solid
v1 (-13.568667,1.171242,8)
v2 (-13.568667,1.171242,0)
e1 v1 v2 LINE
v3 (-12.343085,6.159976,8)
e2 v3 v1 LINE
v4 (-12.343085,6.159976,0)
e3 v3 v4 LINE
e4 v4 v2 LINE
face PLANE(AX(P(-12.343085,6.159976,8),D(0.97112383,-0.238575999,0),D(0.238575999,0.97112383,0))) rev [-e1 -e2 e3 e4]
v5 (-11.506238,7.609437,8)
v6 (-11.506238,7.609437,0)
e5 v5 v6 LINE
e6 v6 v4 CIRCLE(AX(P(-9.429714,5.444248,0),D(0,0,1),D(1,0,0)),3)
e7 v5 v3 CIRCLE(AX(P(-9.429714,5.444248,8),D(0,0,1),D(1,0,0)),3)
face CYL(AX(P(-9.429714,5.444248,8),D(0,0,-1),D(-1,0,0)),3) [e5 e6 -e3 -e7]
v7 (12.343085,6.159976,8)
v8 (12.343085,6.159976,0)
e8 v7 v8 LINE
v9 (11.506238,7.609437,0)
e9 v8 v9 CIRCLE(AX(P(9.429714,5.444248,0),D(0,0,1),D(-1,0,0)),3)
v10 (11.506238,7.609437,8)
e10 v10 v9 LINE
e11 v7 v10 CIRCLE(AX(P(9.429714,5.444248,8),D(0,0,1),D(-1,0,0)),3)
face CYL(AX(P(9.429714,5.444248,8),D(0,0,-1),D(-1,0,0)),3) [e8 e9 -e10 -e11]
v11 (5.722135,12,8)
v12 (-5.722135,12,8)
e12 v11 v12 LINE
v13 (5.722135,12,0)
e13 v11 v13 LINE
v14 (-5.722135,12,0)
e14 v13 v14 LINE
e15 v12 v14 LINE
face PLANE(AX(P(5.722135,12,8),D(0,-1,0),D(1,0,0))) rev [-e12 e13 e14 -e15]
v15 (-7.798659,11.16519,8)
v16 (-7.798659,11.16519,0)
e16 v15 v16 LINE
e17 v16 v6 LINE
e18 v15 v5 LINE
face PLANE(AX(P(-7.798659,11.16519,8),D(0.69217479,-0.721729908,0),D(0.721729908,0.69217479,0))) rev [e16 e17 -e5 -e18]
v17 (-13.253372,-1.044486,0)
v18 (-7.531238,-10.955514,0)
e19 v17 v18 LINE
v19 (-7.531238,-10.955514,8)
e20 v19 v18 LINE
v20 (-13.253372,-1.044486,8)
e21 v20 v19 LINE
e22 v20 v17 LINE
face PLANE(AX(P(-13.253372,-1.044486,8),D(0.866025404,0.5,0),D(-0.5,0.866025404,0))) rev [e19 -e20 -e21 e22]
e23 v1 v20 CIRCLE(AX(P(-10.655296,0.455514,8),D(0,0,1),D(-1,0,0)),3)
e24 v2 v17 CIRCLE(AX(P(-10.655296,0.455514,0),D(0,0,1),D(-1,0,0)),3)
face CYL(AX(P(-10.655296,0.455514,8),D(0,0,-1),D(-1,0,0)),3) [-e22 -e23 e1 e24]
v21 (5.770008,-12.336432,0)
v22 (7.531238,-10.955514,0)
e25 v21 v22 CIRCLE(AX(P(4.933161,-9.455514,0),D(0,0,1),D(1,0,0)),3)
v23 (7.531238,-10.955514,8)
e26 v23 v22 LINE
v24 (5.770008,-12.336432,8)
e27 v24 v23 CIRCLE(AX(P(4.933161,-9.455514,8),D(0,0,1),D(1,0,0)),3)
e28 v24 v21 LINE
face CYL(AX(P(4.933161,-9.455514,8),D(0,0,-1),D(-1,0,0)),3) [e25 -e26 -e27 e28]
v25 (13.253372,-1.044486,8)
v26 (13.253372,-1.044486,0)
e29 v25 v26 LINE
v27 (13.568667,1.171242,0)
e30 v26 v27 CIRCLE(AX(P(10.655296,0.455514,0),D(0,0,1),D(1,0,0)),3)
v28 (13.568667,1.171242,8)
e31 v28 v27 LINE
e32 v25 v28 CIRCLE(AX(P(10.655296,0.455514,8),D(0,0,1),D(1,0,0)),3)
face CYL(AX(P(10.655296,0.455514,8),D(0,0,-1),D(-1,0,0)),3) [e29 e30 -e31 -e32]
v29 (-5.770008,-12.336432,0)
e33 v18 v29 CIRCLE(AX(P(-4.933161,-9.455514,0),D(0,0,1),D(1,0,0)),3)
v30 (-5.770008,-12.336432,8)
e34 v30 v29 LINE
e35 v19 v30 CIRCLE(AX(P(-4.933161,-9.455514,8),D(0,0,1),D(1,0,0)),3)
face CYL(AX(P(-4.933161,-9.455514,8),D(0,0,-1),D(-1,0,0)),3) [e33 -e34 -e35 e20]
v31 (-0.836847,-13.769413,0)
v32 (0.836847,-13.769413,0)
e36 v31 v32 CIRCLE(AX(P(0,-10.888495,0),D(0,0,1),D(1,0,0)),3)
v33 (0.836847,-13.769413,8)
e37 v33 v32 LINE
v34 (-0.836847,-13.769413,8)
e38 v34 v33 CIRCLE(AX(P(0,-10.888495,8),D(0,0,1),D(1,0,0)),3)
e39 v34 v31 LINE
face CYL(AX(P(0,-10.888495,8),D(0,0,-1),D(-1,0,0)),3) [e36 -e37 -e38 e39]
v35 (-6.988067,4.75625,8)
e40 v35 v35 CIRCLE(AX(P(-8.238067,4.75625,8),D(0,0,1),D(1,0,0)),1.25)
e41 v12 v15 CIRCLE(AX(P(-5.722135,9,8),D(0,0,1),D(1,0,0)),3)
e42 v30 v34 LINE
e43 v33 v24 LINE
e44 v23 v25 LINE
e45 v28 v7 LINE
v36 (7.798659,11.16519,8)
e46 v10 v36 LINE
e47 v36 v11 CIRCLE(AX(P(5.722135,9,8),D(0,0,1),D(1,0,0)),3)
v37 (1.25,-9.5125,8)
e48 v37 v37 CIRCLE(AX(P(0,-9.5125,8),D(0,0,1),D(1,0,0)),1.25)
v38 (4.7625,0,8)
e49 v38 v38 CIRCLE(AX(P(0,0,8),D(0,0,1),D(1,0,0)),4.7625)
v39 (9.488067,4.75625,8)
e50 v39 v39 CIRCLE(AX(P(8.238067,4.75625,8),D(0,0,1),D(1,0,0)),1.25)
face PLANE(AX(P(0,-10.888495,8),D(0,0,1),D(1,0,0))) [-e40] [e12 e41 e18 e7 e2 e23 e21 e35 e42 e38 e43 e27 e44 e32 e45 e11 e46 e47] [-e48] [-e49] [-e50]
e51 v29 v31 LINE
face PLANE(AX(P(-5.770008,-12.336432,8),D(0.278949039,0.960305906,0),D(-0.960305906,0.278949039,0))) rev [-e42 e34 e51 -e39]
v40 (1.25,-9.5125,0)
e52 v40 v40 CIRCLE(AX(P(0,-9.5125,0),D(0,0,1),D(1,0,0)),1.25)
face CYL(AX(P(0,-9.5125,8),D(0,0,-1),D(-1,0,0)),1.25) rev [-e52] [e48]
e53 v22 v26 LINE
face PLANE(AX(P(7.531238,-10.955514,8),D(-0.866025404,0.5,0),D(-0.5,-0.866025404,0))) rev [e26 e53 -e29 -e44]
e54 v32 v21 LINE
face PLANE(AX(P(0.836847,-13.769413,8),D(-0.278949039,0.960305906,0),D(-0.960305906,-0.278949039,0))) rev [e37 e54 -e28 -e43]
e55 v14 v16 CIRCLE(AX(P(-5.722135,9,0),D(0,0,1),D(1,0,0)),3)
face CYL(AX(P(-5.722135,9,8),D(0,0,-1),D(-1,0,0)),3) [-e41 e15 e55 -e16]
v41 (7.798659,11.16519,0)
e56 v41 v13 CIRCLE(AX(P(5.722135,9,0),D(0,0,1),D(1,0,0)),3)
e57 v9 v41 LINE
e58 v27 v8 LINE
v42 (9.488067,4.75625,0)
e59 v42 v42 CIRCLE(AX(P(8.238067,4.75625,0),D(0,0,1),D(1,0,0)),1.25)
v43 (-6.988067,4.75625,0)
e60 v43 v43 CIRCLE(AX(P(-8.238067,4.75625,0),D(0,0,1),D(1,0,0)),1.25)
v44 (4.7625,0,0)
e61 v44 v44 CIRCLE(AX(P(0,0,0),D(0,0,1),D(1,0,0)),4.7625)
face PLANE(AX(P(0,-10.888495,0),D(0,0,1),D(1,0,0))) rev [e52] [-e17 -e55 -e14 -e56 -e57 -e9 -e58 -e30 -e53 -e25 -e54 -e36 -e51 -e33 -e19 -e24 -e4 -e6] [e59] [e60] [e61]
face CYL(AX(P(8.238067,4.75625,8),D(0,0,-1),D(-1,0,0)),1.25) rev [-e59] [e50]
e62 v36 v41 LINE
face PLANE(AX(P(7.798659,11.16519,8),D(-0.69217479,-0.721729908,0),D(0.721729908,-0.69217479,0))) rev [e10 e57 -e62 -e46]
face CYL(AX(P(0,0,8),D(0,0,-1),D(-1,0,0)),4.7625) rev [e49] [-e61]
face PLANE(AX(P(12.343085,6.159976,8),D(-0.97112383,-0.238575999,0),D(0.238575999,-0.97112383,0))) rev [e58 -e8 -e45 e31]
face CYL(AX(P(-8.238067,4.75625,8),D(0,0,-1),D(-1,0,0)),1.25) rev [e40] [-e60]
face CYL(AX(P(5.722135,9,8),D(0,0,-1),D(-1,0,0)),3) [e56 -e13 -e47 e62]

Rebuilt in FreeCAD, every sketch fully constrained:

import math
import FreeCAD as App
import Part
import Sketcher
Q = App.Units.Quantity

doc = App.newDocument("Part")
body = doc.addObject("PartDesign::Body", "Body")

sketch1 = body.newObject("Sketcher::SketchObject", "Sketch")
sketch1.AttachmentSupport = (doc.getObject("XY_Plane"), [""])
sketch1.MapMode = "FlatFace"
sketch1.addGeometry([
    Part.LineSegment(App.Vector(-13.253372, -1.044486, 0), App.Vector(-7.531238, -10.955514, 0)),
    Part.ArcOfCircle(Part.Circle(App.Vector(-4.933161, -9.455514, 0), App.Vector(0, 0, 1), 3), math.radians(-150), math.radians(-106.19749)),
    Part.LineSegment(App.Vector(-5.770008, -12.336432, 0), App.Vector(-0.836847, -13.769413, 0)),
    Part.ArcOfCircle(Part.Circle(App.Vector(0, -10.888495, 0), App.Vector(0, 0, 1), 3), math.radians(-106.19749), math.radians(-73.80251)),
    Part.LineSegment(App.Vector(0.836847, -13.769413, 0), App.Vector(5.770008, -12.336432, 0)),
    Part.ArcOfCircle(Part.Circle(App.Vector(4.933161, -9.455514, 0), App.Vector(0, 0, 1), 3), math.radians(-73.80251), math.radians(-30)),
    Part.LineSegment(App.Vector(7.531238, -10.955514, 0), App.Vector(13.253372, -1.044486, 0)),
    Part.ArcOfCircle(Part.Circle(App.Vector(10.655296, 0.455514, 0), App.Vector(0, 0, 1), 3), math.radians(-30), math.radians(13.80251)),
    Part.LineSegment(App.Vector(13.568667, 1.171242, 0), App.Vector(12.343085, 6.159976, 0)),
    Part.ArcOfCircle(Part.Circle(App.Vector(9.429714, 5.444248, 0), App.Vector(0, 0, 1), 3), math.radians(13.80251), math.radians(46.19749)),
    Part.LineSegment(App.Vector(11.506238, 7.609437, 0), App.Vector(7.798659, 11.16519, 0)),
    Part.ArcOfCircle(Part.Circle(App.Vector(5.722135, 9, 0), App.Vector(0, 0, 1), 3), math.radians(46.19749), math.radians(90)),
    Part.LineSegment(App.Vector(5.722135, 12, 0), App.Vector(-5.722135, 12, 0)),
    Part.ArcOfCircle(Part.Circle(App.Vector(-5.722135, 9, 0), App.Vector(0, 0, 1), 3), math.radians(90), math.radians(133.80251)),
    Part.LineSegment(App.Vector(-7.798659, 11.16519, 0), App.Vector(-11.506238, 7.609437, 0)),
    Part.ArcOfCircle(Part.Circle(App.Vector(-9.429714, 5.444248, 0), App.Vector(0, 0, 1), 3), math.radians(133.80251), math.radians(166.19749)),
    Part.LineSegment(App.Vector(-12.343085, 6.159976, 0), App.Vector(-13.568667, 1.171242, 0)),
    Part.ArcOfCircle(Part.Circle(App.Vector(-10.655296, 0.455514, 0), App.Vector(0, 0, 1), 3), math.radians(166.19749), math.radians(210)),
    Part.Circle(App.Vector(0, -9.5125, 0), App.Vector(0, 0, 1), 1.25),
    Part.Circle(App.Vector(-8.238067, 4.75625, 0), App.Vector(0, 0, 1), 1.25),
    Part.Circle(App.Vector(0, 0, 0), App.Vector(0, 0, 1), 4.7625),
    Part.Circle(App.Vector(8.238067, 4.75625, 0), App.Vector(0, 0, 1), 1.25),
], False)
sketch1.addConstraint([
    Sketcher.Constraint("Tangent", 0, 2, 1, 1),
    Sketcher.Constraint("Tangent", 1, 2, 2, 1),
    Sketcher.Constraint("Tangent", 2, 2, 3, 1),
    Sketcher.Constraint("Tangent", 3, 2, 4, 1),
    Sketcher.Constraint("Tangent", 4, 2, 5, 1),
    Sketcher.Constraint("Tangent", 5, 2, 6, 1),
    Sketcher.Constraint("Tangent", 6, 2, 7, 1),
    Sketcher.Constraint("Tangent", 7, 2, 8, 1),
    Sketcher.Constraint("Tangent", 8, 2, 9, 1),
    Sketcher.Constraint("Tangent", 9, 2, 10, 1),
    Sketcher.Constraint("Tangent", 10, 2, 11, 1),
    Sketcher.Constraint("Tangent", 11, 2, 12, 1),
    Sketcher.Constraint("Tangent", 12, 2, 13, 1),
    Sketcher.Constraint("Tangent", 13, 2, 14, 1),
    Sketcher.Constraint("Tangent", 14, 2, 15, 1),
    Sketcher.Constraint("Tangent", 15, 2, 16, 1),
    Sketcher.Constraint("Tangent", 16, 2, 17, 1),
    Sketcher.Constraint("Tangent", 17, 2, 0, 1),
    Sketcher.Constraint("Horizontal", 12),
    Sketcher.Constraint("Coincident", 20, 3, -1, 1),
    Sketcher.Constraint("Equal", 1, 3),
    Sketcher.Constraint("Equal", 3, 5),
    Sketcher.Constraint("Equal", 5, 7),
    Sketcher.Constraint("Equal", 7, 9),
    Sketcher.Constraint("Equal", 9, 11),
    Sketcher.Constraint("Equal", 11, 13),
    Sketcher.Constraint("Equal", 13, 15),
    Sketcher.Constraint("Equal", 15, 17),
    Sketcher.Constraint("Equal", 18, 19),
    Sketcher.Constraint("Equal", 19, 21),
    Sketcher.Constraint("Symmetric", 1, 3, 5, 3, -2),
    Sketcher.Constraint("Symmetric", 9, 3, 15, 3, -2),
    Sketcher.Constraint("Symmetric", 7, 3, 17, 3, -2),
    Sketcher.Constraint("Symmetric", 19, 3, 21, 3, -2),
    Sketcher.Constraint("PointOnObject", 3, 3, -2),
    Sketcher.Constraint("PointOnObject", 18, 3, -2),
    Sketcher.Constraint("Horizontal", 10, 2, 13, 2),
    Sketcher.Constraint("Equal", 4, 8),
    Sketcher.Constraint("Equal", 8, 10),
    Sketcher.Constraint("Radius", 1, Q("3 mm")),
    Sketcher.Constraint("Diameter", 18, Q("2.5 mm")),
    Sketcher.Constraint("Angle", 0, Q("-60 deg")),
    Sketcher.Constraint("Diameter", 20, Q("9.525 mm")),
    Sketcher.Constraint("DistanceY", -1, 1, 11, 3, Q("9 mm")),
    Sketcher.Constraint("DistanceX", 12, 2, 12, 1, Q("11.444269 mm")),
    Sketcher.Constraint("DistanceY", 18, 3, -1, 1, Q("9.5125 mm")),
    Sketcher.Constraint("DistanceX", 19, 3, 11, 3, Q("13.960201 mm")),
    Sketcher.Constraint("DistanceX", 0, 2, 5, 3, Q("12.464399 mm")),
    Sketcher.Constraint("DistanceY", 2, 2, 1, 3, Q("4.313899 mm")),
    Sketcher.Constraint("DistanceX", 21, 3, 7, 2, Q("5.330601 mm")),
    Sketcher.Constraint("Distance", 0, Q("11.444269 mm")),
    Sketcher.Constraint("DistanceY", -1, 1, 19, 3, Q("4.75625 mm")),
])
pad1 = body.newObject("PartDesign::Pad", "Pad")
pad1.Profile = sketch1
pad1.Length = 8

doc.recompute()
